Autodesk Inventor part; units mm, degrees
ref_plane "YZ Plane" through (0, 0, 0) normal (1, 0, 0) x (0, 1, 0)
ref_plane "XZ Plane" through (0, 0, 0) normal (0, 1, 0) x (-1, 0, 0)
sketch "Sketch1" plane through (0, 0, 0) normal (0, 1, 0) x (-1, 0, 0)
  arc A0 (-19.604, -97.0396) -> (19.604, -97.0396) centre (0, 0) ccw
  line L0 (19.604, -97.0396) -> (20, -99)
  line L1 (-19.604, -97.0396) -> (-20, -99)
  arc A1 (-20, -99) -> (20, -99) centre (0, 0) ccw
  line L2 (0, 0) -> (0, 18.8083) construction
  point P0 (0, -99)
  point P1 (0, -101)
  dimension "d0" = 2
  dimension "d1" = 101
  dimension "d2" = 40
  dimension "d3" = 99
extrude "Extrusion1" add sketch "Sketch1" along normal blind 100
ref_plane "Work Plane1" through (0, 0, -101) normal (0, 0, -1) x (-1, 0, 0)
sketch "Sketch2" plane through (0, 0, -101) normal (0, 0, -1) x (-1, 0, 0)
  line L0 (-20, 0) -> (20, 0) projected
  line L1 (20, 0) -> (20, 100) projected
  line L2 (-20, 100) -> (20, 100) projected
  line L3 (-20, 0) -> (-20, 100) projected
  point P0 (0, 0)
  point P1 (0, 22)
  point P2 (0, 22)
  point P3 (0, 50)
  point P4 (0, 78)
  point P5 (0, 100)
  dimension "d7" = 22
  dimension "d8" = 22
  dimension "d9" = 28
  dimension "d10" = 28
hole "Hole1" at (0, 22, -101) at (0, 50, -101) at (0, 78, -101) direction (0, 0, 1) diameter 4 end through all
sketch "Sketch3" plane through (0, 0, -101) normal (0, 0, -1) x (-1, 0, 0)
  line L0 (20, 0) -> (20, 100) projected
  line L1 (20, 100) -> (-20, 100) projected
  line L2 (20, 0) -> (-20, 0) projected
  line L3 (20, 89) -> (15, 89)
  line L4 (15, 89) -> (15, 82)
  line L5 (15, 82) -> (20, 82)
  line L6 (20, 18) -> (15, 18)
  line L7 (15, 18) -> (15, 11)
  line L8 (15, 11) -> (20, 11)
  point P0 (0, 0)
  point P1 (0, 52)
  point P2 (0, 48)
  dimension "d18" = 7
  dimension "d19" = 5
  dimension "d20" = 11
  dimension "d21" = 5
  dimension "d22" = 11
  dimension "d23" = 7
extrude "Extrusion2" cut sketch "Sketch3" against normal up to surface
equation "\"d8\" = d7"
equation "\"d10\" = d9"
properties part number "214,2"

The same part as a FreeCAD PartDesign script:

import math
import FreeCAD as App
import Part
import Sketcher
from FreeCAD import Vector
Q = App.Units.Quantity

doc = App.newDocument("Part")
params = doc.addObject("Spreadsheet::Sheet", "Params")
for row, (alias, value) in enumerate([
    ("sketch1_radius", "99 mm"),
    ("sketch1_radius2", "101 mm"),
    ("pad1_length", "100 mm"),
    ("sketch2_diameter", "4 mm"),
    ("hole_diameter", "4 mm"),
    ("sketch3_width", "5 mm"),
    ("sketch3_height", "7 mm"),
    ("pocket1_length", "3.9604 mm"),
], start=1):
    params.set(f"A{row}", alias)
    params.set(f"B{row}", "=" + value)
    params.setAlias(f"B{row}", alias)

body = doc.addObject("PartDesign::Body", "Body")

sketch1 = body.newObject("Sketcher::SketchObject", "Sketch")
sketch1.AttachmentSupport = (doc.getObject("XZ_Plane"), [""])
sketch1.MapMode = "FlatFace"
sketch1.addGeometry([
    Part.ArcOfCircle(Part.Circle(Vector(0, 0, 0), Vector(0, 0, 1), 99), math.radians(-101), math.radians(-79)),
    Part.LineSegment(Vector(19.6, -97, 0), Vector(20, -99, 0)),
    Part.ArcOfCircle(Part.Circle(Vector(0, 0, 0), Vector(0, 0, 1), 101), math.radians(-101), math.radians(-79)),
    Part.LineSegment(Vector(-20, -99, 0), Vector(-19.6, -97, 0)),
], False)
sketch1.addConstraint([
    Sketcher.Constraint("Coincident", 0, 2, 1, 1),
    Sketcher.Constraint("Coincident", 1, 2, 2, 2),
    Sketcher.Constraint("Coincident", 2, 1, 3, 1),
    Sketcher.Constraint("Coincident", 3, 2, 0, 1),
    Sketcher.Constraint("Coincident", 0, 3, -1, 1),
    Sketcher.Constraint("Coincident", 2, 3, -1, 1),
    Sketcher.Constraint("Horizontal", 1, 2, 2, 1),
    Sketcher.Constraint("Horizontal", 0, 2, 3, 2),
    Sketcher.Constraint("Radius", 0, Q("99 mm")),
    Sketcher.Constraint("Radius", 2, Q("101 mm")),
    Sketcher.Constraint("DistanceY", 1, 2, -1, 1, Q("99 mm")),
    Sketcher.Constraint("Angle", 1, Q("-78.58 deg")),
])
sketch1.setExpression("Constraints[8]", "Params.sketch1_radius")
sketch1.setExpression("Constraints[9]", "Params.sketch1_radius2")
pad1 = body.newObject("PartDesign::Pad", "Pad")
pad1.Profile = sketch1
pad1.setExpression("Length", "Params.pad1_length")
pad1.Reversed = True

sketch2 = body.newObject("Sketcher::SketchObject", "Sketch001")
sketch2.AttachmentSupport = (doc.getObject("XY_Plane"), [""])
sketch2.MapMode = "FlatFace"
sketch2.AttachmentOffset = App.Placement(Vector(0, 0, -101), App.Rotation())
sketch2.addGeometry([
    Part.Circle(Vector(0, 22, 0), Vector(0, 0, 1), 2),
    Part.Circle(Vector(0, 50, 0), Vector(0, 0, 1), 2),
    Part.Circle(Vector(0, 78, 0), Vector(0, 0, 1), 2),
], False)
sketch2.addConstraint([
    Sketcher.Constraint("Equal", 0, 1),
    Sketcher.Constraint("Equal", 1, 2),
    Sketcher.Constraint("PointOnObject", 0, 3, -2),
    Sketcher.Constraint("PointOnObject", 1, 3, -2),
    Sketcher.Constraint("PointOnObject", 2, 3, -2),
    Sketcher.Constraint("Diameter", 0, Q("4 mm")),
    Sketcher.Constraint("DistanceY", -1, 1, 0, 3, Q("22 mm")),
    Sketcher.Constraint("DistanceY", -1, 1, 1, 3, Q("50 mm")),
    Sketcher.Constraint("DistanceY", -1, 1, 2, 3, Q("78 mm")),
])
sketch2.setExpression("Constraints[5]", "Params.sketch2_diameter")
doc.recompute()
hole = body.newObject("PartDesign::Hole", "Hole")
hole.Profile = sketch2
hole.ThreadType = "None"
hole.setExpression("Diameter", "Params.hole_diameter")
hole.DepthType = "ThroughAll"
hole.Reversed = True

sketch3 = body.newObject("Sketcher::SketchObject", "Sketch002")
sketch3.AttachmentSupport = (doc.getObject("XY_Plane"), [""])
sketch3.MapMode = "FlatFace"
sketch3.AttachmentOffset = App.Placement(Vector(0, 0, -101), App.Rotation())
sketch3.addGeometry([
    Part.LineSegment(Vector(-15, 11, 0), Vector(-20, 11, 0)),
    Part.LineSegment(Vector(-20, 11, 0), Vector(-20, 18, 0)),
    Part.LineSegment(Vector(-20, 18, 0), Vector(-15, 18, 0)),
    Part.LineSegment(Vector(-15, 18, 0), Vector(-15, 11, 0)),
    Part.LineSegment(Vector(-15, 82, 0), Vector(-20, 82, 0)),
    Part.LineSegment(Vector(-20, 82, 0), Vector(-20, 89, 0)),
    Part.LineSegment(Vector(-20, 89, 0), Vector(-15, 89, 0)),
    Part.LineSegment(Vector(-15, 89, 0), Vector(-15, 82, 0)),
], False)
sketch3.addConstraint([
    Sketcher.Constraint("Coincident", 0, 2, 1, 1),
    Sketcher.Constraint("Coincident", 1, 2, 2, 1),
    Sketcher.Constraint("Coincident", 2, 2, 3, 1),
    Sketcher.Constraint("Coincident", 3, 2, 0, 1),
    Sketcher.Constraint("Coincident", 4, 2, 5, 1),
    Sketcher.Constraint("Coincident", 5, 2, 6, 1),
    Sketcher.Constraint("Coincident", 6, 2, 7, 1),
    Sketcher.Constraint("Coincident", 7, 2, 4, 1),
    Sketcher.Constraint("Horizontal", 0),
    Sketcher.Constraint("Vertical", 1),
    Sketcher.Constraint("Horizontal", 2),
    Sketcher.Constraint("Vertical", 3),
    Sketcher.Constraint("Horizontal", 4),
    Sketcher.Constraint("Vertical", 5),
    Sketcher.Constraint("Horizontal", 6),
    Sketcher.Constraint("Vertical", 7),
    Sketcher.Constraint("Vertical", 1, 2, 4, 2),
    Sketcher.Constraint("Vertical", 3, 2, 6, 2),
    Sketcher.Constraint("Equal", 3, 5),
    Sketcher.Constraint("DistanceX", 0, 2, 0, 1, Q("5 mm")),
    Sketcher.Constraint("DistanceY", 1, 1, 1, 2, Q("7 mm")),
    Sketcher.Constraint("DistanceY", -1, 1, 0, 2, Q("11 mm")),
    Sketcher.Constraint("DistanceX", 0, 2, -1, 1, Q("20 mm")),
    Sketcher.Constraint("DistanceY", -1, 1, 4, 2, Q("82 mm")),
])
sketch3.setExpression("Constraints[19]", "Params.sketch3_width")
sketch3.setExpression("Constraints[20]", "Params.sketch3_height")
pocket1 = body.newObject("PartDesign::Pocket", "Pocket")
pocket1.Profile = sketch3
pocket1.setExpression("Length", "Params.pocket1_length")
pocket1.Reversed = True

doc.recompute()
